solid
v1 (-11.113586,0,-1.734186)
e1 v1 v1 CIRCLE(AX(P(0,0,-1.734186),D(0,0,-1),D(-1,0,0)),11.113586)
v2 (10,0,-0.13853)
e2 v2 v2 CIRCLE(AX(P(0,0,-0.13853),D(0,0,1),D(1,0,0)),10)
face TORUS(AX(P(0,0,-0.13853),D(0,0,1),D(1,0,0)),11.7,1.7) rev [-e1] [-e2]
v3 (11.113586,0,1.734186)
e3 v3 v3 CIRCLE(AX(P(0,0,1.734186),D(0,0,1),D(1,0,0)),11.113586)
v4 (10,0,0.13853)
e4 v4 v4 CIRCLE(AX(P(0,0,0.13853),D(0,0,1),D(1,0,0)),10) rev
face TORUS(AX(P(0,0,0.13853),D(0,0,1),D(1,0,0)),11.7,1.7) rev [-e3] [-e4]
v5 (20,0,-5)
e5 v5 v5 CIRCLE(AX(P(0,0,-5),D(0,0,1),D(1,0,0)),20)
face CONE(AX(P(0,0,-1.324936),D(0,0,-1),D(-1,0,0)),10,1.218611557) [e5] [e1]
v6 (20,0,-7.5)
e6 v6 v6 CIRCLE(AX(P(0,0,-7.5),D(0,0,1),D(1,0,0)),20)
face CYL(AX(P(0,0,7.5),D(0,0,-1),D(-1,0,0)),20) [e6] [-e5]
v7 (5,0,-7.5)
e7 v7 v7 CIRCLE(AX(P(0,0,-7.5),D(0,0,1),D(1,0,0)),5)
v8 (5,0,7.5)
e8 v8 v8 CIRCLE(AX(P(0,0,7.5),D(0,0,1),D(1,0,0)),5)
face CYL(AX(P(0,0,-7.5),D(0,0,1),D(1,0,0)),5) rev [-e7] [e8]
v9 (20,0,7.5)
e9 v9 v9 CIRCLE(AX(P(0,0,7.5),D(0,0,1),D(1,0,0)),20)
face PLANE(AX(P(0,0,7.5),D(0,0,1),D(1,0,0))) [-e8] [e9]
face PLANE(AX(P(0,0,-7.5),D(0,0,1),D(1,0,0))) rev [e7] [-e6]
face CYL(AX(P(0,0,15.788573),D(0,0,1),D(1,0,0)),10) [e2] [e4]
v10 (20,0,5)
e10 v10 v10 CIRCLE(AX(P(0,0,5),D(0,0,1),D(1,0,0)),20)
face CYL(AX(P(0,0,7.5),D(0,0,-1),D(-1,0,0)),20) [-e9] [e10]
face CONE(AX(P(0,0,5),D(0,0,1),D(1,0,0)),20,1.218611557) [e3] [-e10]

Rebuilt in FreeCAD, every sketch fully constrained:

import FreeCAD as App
import Part
import Sketcher

V = App.Vector
Q = App.Units.Quantity


def edges_at(feature, points):
    """Names of the edges that pass closest to the given points."""
    edges = feature.Shape.Edges
    near = lambda p: min(range(len(edges)), key=lambda i: edges[i].distToShape(Part.Vertex(*p))[0])
    return sorted({f"Edge{near(p) + 1}" for p in points})


def add_polygon(sketch, points):
    """Adds a closed chain of lines whose ends are joined by coincident constraints."""
    first, n = sketch.GeometryCount, len(points)
    for a, b in zip(points, points[1:] + points[:1]):
        sketch.addGeometry(Part.LineSegment(App.Vector(*a, 0), App.Vector(*b, 0)), False)
    for i in range(n):
        sketch.addConstraint(Sketcher.Constraint("Coincident", first + i, 2, first + (i + 1) % n, 1))

doc = App.newDocument("Part")
body = doc.addObject("PartDesign::Body", "Body")

# Sketch on XY plane
sketch1 = doc.addObject("Sketcher::SketchObject", "Sketch")
body.addObject(sketch1)
sketch1.AttachmentSupport = (doc.XY_Plane, [""])
sketch1.MapMode = "FlatFace"
sketch1.addGeometry(Part.Circle(V(0, 0, 0), V(0, 0, 1), 20), False)
sketch1.addConstraint([
    Sketcher.Constraint("Coincident", 0, 3, -1, 1),
    Sketcher.Constraint("Diameter", 0, Q("40 mm")),
])
pad1 = doc.addObject("PartDesign::Pad", "Pad")
body.addObject(pad1)
pad1.Profile = sketch1
pad1.Length = 15
pad1.Midplane = True

# Sketch on YZ plane
sketch2 = doc.addObject("Sketcher::SketchObject", "Sketch001")
body.addObject(sketch2)
sketch2.AttachmentSupport = (doc.YZ_Plane, [""])
sketch2.MapMode = "FlatFace"
add_polygon(sketch2, [(20, 5), (10, 1.3), (10, -1.3), (20, -5)])  # lines 0-3
sketch2.addConstraint([
    Sketcher.Constraint("Vertical", 1),
    Sketcher.Constraint("Vertical", 3),
    Sketcher.Constraint("Equal", 0, 2),
    Sketcher.Constraint("DistanceY", 3, 1, 3, 2, Q("10 mm")),
    Sketcher.Constraint("DistanceX", -1, 1, 0, 2, Q("10 mm")),
    Sketcher.Constraint("DistanceX", -1, 1, 2, 2, Q("20 mm")),
    Sketcher.Constraint("DistanceY", 2, 2, -1, 1, Q("5 mm")),
    Sketcher.Constraint("DistanceY", 1, 2, 1, 1, Q("2.649873 mm")),
])
groove = doc.addObject("PartDesign::Groove", "Groove")
body.addObject(groove)
groove.Profile = sketch2
groove.ReferenceAxis = (sketch2, ["V_Axis"])
groove.Angle = 360
doc.recompute()

fillet = doc.addObject("PartDesign::Fillet", "Fillet")
body.addObject(fillet)
fillet.Base = (groove, edges_at(groove, [(-10, 0, -1.325)]))
fillet.Radius = 1.7
doc.recompute()

fillet2 = doc.addObject("PartDesign::Fillet", "Fillet001")
body.addObject(fillet2)
fillet2.Base = (fillet, edges_at(fillet, [(-10, 0, 1.325)]))
fillet2.Radius = 1.7

# Sketch on XY plane
sketch3 = doc.addObject("Sketcher::SketchObject", "Sketch002")
body.addObject(sketch3)
sketch3.AttachmentSupport = (doc.XY_Plane, [""])
sketch3.MapMode = "FlatFace"
sketch3.AttachmentOffset = App.Placement(V(0, 0, 7.5), App.Rotation())
sketch3.addGeometry(Part.Circle(V(0, 0, 0), V(0, 0, 1), 5), False)
sketch3.addConstraint([
    Sketcher.Constraint("Coincident", 0, 3, -1, 1),
    Sketcher.Constraint("Diameter", 0, Q("10 mm")),
])
pocket1 = doc.addObject("PartDesign::Pocket", "Pocket")
body.addObject(pocket1)
pocket1.Profile = sketch3
pocket1.Type = "ThroughAll"

doc.recompute()
